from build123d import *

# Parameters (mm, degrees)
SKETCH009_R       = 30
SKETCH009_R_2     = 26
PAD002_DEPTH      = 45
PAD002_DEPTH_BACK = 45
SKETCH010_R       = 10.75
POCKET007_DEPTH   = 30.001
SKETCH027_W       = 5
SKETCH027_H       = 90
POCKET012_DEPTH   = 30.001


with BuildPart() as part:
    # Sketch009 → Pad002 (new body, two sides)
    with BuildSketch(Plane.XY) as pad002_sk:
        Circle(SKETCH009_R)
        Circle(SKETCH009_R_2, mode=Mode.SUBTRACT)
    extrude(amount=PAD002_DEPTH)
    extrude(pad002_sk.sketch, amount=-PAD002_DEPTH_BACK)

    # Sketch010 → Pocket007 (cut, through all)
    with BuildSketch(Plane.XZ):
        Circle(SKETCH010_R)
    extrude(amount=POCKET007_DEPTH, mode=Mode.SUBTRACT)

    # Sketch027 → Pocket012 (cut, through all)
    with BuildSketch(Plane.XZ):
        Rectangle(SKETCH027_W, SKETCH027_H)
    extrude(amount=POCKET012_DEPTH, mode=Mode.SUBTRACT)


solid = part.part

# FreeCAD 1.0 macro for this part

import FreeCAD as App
import Part
import Sketcher
Q = App.Units.Quantity

doc = App.newDocument("Part")
params = doc.addObject("Spreadsheet::Sheet", "Params")
for row, (alias, value) in enumerate([
    ("sketch1_diameter", "60 mm"),
    ("sketch1_diameter2", "52 mm"),
    ("pad1_length", "45 mm"),
    ("pad1_length2", "45 mm"),
    ("sketch2_diameter", "21.5 mm"),
    ("sketch3_width", "5 mm"),
    ("sketch3_height", "90 mm"),
], start=1):
    params.set(f"A{row}", alias)
    params.set(f"B{row}", "=" + value)
    params.setAlias(f"B{row}", alias)

body = doc.addObject("PartDesign::Body", "Body")

# Sketch on XY plane
sketch1 = body.newObject("Sketcher::SketchObject", "Sketch")
sketch1.AttachmentSupport = (doc.getObject("XY_Plane"), [""])
sketch1.MapMode = "FlatFace"
sketch1.addGeometry([
    Part.Circle(App.Vector(0, 0, 0), App.Vector(0, 0, 1), 30),
    Part.Circle(App.Vector(0, 0, 0), App.Vector(0, 0, 1), 26),
], False)
sketch1.addConstraint([
    Sketcher.Constraint("Coincident", 0, 3, -1, 1),
    Sketcher.Constraint("Coincident", 1, 3, -1, 1),
    Sketcher.Constraint("Diameter", 0, Q("60 mm")),
    Sketcher.Constraint("Diameter", 1, Q("52 mm")),
])
sketch1.setExpression("Constraints[2]", "Params.sketch1_diameter")
sketch1.setExpression("Constraints[3]", "Params.sketch1_diameter2")
pad1 = body.newObject("PartDesign::Pad", "Pad")
pad1.Profile = sketch1
pad1.Type = "TwoLengths"
pad1.setExpression("Length", "Params.pad1_length")
pad1.setExpression("Length2", "Params.pad1_length2")

# Sketch on XZ plane
sketch2 = body.newObject("Sketcher::SketchObject", "Sketch001")
sketch2.AttachmentSupport = (doc.getObject("XZ_Plane"), [""])
sketch2.MapMode = "FlatFace"
sketch2.addGeometry(Part.Circle(App.Vector(0, 0, 0), App.Vector(0, 0, 1), 10.75), False)
sketch2.addConstraint([
    Sketcher.Constraint("Coincident", 0, 3, -1, 1),
    Sketcher.Constraint("Diameter", 0, Q("21.5 mm")),
])
sketch2.setExpression("Constraints[1]", "Params.sketch2_diameter")
pocket1 = body.newObject("PartDesign::Pocket", "Pocket")
pocket1.Profile = sketch2
pocket1.Type = "ThroughAll"
pocket1.Reversed = True

# Sketch on XZ plane
sketch3 = body.newObject("Sketcher::SketchObject", "Sketch002")
sketch3.AttachmentSupport = (doc.getObject("XZ_Plane"), [""])
sketch3.MapMode = "FlatFace"
sketch3.addGeometry([
    Part.LineSegment(App.Vector(-2.5, 45, 0), App.Vector(-2.5, -45, 0)),
    Part.LineSegment(App.Vector(-2.5, -45, 0), App.Vector(2.5, -45, 0)),
    Part.LineSegment(App.Vector(2.5, -45, 0), App.Vector(2.5, 45, 0)),
    Part.LineSegment(App.Vector(2.5, 45, 0), App.Vector(-2.5, 45, 0)),
], False)
sketch3.addConstraint([
    Sketcher.Constraint("Coincident", 0, 2, 1, 1),
    Sketcher.Constraint("Coincident", 1, 2, 2, 1),
    Sketcher.Constraint("Coincident", 2, 2, 3, 1),
    Sketcher.Constraint("Coincident", 3, 2, 0, 1),
    Sketcher.Constraint("Vertical", 0),
    Sketcher.Constraint("Horizontal", 1),
    Sketcher.Constraint("Vertical", 2),
    Sketcher.Constraint("Horizontal", 3),
    Sketcher.Constraint("Symmetric", 0, 2, 2, 2, -1, 1),
    Sketcher.Constraint("DistanceX", 1, 1, 1, 2, Q("5 mm")),
    Sketcher.Constraint("DistanceY", 0, 2, 0, 1, Q("90 mm")),
])
sketch3.setExpression("Constraints[9]", "Params.sketch3_width")
sketch3.setExpression("Constraints[10]", "Params.sketch3_height")
pocket2 = body.newObject("PartDesign::Pocket", "Pocket001")
pocket2.Profile = sketch3
pocket2.Type = "ThroughAll"
pocket2.Reversed = True

doc.recompute()
